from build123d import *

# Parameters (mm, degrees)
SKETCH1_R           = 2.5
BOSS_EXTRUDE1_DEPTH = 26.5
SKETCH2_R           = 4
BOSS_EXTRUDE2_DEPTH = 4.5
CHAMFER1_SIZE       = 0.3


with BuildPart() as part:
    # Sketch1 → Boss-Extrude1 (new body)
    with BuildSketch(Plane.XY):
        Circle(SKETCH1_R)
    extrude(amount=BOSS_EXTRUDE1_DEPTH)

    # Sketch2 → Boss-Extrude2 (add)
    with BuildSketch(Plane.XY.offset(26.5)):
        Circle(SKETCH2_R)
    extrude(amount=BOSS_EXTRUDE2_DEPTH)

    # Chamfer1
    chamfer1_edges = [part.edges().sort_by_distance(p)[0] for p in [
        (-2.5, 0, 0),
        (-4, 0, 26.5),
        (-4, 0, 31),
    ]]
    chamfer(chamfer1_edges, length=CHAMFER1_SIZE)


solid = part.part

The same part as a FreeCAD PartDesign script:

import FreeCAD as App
import Part
import Sketcher
from FreeCAD import Vector


def edges_at(feature, points):
    """Names of the edges that pass closest to the given points."""
    edges = feature.Shape.Edges
    near = lambda p: min(range(len(edges)), key=lambda i: edges[i].distToShape(Part.Vertex(*p))[0])
    return sorted({f"Edge{near(p) + 1}" for p in points})

doc = App.newDocument("Part")
params = doc.addObject("Spreadsheet::Sheet", "Params")
for row, (alias, value) in enumerate([
    ("sketch1_diameter", "5 mm"),
    ("pad1_length", "26.5 mm"),
    ("sketch2_diameter", "8 mm"),
    ("pad2_length", "4.5 mm"),
    ("chamfer_size", "0.3 mm"),
], start=1):
    params.set(f"A{row}", alias)
    params.set(f"B{row}", "=" + value)
    params.setAlias(f"B{row}", alias)

body = doc.addObject("PartDesign::Body", "Body")

# Sketch on XY plane
sketch1 = body.newObject("Sketcher::SketchObject", "Sketch")
sketch1.AttachmentSupport = (doc.getObject("XY_Plane"), [""])
sketch1.MapMode = "FlatFace"
sketch1.addGeometry(Part.Circle(Vector(0, 0, 0), Vector(0, 0, 1), 2.5), False)
sketch1.addConstraint(Sketcher.Constraint("Coincident", 0, 3, -1, 1))
sketch1.addConstraint(Sketcher.Constraint("Diameter", 0, 5.0))
sketch1.setExpression("Constraints[1]", "Params.sketch1_diameter")
pad1 = body.newObject("PartDesign::Pad", "Pad")
pad1.Profile = sketch1
pad1.setExpression("Length", "Params.pad1_length")

# Sketch on XY plane
sketch2 = body.newObject("Sketcher::SketchObject", "Sketch001")
sketch2.AttachmentSupport = (doc.getObject("XY_Plane"), [""])
sketch2.MapMode = "FlatFace"
sketch2.AttachmentOffset = App.Placement(Vector(0, 0, 26.5), App.Rotation())
sketch2.addGeometry(Part.Circle(Vector(0, 0, 0), Vector(0, 0, 1), 4), False)
sketch2.addConstraint(Sketcher.Constraint("Coincident", 0, 3, -1, 1))
sketch2.addConstraint(Sketcher.Constraint("Diameter", 0, 8.0))
sketch2.setExpression("Constraints[1]", "Params.sketch2_diameter")
pad2 = body.newObject("PartDesign::Pad", "Pad001")
pad2.Profile = sketch2
pad2.setExpression("Length", "Params.pad2_length")
doc.recompute()

chamfer = body.newObject("PartDesign::Chamfer", "Chamfer")
chamfer.Base = (pad2, edges_at(pad2, [(-2.5, 0, 0), (-4, 0, 26.5), (-4, 0, 31)]))
chamfer.setExpression("Size", "Params.chamfer_size")

doc.recompute()
